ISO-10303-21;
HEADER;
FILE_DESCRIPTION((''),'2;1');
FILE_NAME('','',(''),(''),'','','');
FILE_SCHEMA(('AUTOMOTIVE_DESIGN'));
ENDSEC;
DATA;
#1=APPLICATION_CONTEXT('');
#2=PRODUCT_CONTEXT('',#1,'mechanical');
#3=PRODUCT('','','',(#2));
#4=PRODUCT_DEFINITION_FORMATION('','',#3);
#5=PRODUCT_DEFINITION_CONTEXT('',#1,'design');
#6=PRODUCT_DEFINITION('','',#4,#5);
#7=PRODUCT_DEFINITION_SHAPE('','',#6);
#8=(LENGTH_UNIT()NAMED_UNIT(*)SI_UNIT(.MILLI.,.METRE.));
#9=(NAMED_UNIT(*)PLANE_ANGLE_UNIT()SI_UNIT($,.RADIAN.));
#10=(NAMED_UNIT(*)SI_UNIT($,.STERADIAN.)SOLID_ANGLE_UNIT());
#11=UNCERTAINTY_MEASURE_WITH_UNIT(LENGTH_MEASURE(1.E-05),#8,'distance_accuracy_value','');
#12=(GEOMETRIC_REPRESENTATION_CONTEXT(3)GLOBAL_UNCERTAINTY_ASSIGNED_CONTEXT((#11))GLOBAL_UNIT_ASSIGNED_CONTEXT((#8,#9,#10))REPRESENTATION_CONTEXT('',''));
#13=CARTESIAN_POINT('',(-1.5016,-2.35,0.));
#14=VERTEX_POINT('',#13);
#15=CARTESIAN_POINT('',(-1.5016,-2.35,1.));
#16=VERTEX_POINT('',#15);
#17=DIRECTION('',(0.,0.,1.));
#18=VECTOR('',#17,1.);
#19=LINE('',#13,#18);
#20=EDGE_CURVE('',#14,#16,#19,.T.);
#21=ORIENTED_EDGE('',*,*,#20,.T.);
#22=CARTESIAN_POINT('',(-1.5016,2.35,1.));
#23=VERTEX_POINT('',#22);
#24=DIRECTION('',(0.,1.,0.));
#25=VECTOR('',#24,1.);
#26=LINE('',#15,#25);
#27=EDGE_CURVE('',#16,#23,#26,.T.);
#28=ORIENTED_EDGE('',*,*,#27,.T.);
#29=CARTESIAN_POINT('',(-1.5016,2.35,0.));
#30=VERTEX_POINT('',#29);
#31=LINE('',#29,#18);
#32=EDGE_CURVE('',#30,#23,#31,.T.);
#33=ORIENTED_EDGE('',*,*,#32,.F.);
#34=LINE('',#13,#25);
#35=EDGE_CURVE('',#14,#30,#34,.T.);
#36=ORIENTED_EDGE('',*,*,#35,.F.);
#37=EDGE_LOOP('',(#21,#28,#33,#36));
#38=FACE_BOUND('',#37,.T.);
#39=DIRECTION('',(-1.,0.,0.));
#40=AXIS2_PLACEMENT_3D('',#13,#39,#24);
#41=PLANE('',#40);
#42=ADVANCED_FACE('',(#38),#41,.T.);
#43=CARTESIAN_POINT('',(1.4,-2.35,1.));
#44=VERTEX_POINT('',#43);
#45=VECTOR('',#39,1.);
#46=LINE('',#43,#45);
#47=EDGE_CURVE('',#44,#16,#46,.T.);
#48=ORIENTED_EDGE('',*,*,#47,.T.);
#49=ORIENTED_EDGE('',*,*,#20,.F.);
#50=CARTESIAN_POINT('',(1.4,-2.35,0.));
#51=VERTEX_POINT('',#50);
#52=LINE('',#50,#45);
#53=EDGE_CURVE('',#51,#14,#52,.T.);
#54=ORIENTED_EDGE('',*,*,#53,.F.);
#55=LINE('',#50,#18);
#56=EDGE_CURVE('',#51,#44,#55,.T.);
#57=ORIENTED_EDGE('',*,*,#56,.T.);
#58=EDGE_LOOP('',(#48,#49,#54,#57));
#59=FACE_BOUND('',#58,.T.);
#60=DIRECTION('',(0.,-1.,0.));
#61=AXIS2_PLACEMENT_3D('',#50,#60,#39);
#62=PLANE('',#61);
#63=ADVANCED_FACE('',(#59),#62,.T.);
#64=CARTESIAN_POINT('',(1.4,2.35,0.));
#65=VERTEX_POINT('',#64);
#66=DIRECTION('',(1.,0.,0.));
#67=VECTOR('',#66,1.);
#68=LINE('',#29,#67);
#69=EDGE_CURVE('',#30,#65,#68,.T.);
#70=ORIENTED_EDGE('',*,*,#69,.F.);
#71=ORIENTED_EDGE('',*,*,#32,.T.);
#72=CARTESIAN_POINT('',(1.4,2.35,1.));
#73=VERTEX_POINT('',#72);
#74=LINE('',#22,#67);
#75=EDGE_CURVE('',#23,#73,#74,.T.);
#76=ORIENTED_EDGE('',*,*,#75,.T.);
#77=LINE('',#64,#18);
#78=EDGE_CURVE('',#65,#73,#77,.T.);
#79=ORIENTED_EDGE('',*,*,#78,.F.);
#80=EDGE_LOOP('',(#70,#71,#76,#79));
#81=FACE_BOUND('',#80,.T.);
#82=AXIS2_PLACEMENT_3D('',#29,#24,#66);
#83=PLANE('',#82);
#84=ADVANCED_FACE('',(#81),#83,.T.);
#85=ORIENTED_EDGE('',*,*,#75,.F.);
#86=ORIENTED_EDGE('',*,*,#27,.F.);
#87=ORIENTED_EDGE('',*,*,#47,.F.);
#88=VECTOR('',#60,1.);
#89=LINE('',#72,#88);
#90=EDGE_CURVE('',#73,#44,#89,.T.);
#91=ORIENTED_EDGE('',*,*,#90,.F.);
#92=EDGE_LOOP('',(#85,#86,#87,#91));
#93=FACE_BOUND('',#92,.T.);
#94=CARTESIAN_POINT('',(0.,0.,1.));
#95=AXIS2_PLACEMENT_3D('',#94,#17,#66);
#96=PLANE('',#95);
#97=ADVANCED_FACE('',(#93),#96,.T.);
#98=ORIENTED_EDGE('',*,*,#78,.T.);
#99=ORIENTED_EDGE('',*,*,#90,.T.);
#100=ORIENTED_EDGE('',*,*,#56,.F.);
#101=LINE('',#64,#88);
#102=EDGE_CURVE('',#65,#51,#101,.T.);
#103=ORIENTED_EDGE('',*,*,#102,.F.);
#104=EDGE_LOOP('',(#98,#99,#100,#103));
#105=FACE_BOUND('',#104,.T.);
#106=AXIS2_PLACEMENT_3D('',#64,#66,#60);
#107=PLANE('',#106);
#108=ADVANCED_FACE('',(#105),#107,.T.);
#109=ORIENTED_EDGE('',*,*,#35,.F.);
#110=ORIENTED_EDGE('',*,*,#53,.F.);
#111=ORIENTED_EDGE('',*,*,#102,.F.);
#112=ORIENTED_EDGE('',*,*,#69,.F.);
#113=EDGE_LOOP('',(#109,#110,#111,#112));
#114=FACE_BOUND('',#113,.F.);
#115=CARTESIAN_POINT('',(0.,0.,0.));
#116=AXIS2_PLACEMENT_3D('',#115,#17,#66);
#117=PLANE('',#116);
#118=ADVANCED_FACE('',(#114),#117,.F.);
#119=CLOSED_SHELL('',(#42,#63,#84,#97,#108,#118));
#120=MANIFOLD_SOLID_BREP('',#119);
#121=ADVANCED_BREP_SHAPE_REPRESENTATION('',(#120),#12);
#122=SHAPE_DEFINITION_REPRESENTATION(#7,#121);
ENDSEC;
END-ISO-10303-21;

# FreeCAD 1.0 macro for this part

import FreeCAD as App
import Part
import Sketcher
Q = App.Units.Quantity


def add_polygon(sketch, points):
    """Adds a closed chain of lines whose ends are joined by coincident constraints."""
    first, n = sketch.GeometryCount, len(points)
    for a, b in zip(points, points[1:] + points[:1]):
        sketch.addGeometry(Part.LineSegment(App.Vector(*a, 0), App.Vector(*b, 0)), False)
    for i in range(n):
        sketch.addConstraint(Sketcher.Constraint("Coincident", first + i, 2, first + (i + 1) % n, 1))

doc = App.newDocument("Part")
params = doc.addObject("Spreadsheet::Sheet", "Params")
for row, (alias, value) in enumerate([
    ("sketch1_height", "4.7 mm"),
    ("pad1_length", "1 mm"),
], start=1):
    params.set(f"A{row}", alias)
    params.set(f"B{row}", "=" + value)
    params.setAlias(f"B{row}", alias)

body = doc.addObject("PartDesign::Body", "Body")

sketch1 = body.newObject("Sketcher::SketchObject", "Sketch")
sketch1.AttachmentSupport = (doc.getObject("XY_Plane"), [""])
sketch1.MapMode = "FlatFace"
add_polygon(sketch1, [(1.4, 2.35), (-1.5016, 2.35), (-1.5016, -2.35), (1.4, -2.35)])
sketch1.addConstraint(Sketcher.Constraint("Horizontal", 0))
sketch1.addConstraint(Sketcher.Constraint("Vertical", 1))
sketch1.addConstraint(Sketcher.Constraint("Horizontal", 2))
sketch1.addConstraint(Sketcher.Constraint("Vertical", 3))
sketch1.addConstraint(Sketcher.Constraint("DistanceY", 1, 2, 1, 1, Q("4.7 mm")))
sketch1.addConstraint(Sketcher.Constraint("DistanceX", -1, 1, 2, 2, Q("1.4 mm")))
sketch1.addConstraint(Sketcher.Constraint("DistanceY", -1, 1, 0, 2, Q("2.35 mm")))
sketch1.addConstraint(Sketcher.Constraint("DistanceX", 0, 2, 0, 1, Q("2.9016 mm")))
sketch1.setExpression("Constraints[8]", "Params.sketch1_height")
pad1 = body.newObject("PartDesign::Pad", "Pad")
pad1.Profile = sketch1
pad1.setExpression("Length", "Params.pad1_length")

doc.recompute()
